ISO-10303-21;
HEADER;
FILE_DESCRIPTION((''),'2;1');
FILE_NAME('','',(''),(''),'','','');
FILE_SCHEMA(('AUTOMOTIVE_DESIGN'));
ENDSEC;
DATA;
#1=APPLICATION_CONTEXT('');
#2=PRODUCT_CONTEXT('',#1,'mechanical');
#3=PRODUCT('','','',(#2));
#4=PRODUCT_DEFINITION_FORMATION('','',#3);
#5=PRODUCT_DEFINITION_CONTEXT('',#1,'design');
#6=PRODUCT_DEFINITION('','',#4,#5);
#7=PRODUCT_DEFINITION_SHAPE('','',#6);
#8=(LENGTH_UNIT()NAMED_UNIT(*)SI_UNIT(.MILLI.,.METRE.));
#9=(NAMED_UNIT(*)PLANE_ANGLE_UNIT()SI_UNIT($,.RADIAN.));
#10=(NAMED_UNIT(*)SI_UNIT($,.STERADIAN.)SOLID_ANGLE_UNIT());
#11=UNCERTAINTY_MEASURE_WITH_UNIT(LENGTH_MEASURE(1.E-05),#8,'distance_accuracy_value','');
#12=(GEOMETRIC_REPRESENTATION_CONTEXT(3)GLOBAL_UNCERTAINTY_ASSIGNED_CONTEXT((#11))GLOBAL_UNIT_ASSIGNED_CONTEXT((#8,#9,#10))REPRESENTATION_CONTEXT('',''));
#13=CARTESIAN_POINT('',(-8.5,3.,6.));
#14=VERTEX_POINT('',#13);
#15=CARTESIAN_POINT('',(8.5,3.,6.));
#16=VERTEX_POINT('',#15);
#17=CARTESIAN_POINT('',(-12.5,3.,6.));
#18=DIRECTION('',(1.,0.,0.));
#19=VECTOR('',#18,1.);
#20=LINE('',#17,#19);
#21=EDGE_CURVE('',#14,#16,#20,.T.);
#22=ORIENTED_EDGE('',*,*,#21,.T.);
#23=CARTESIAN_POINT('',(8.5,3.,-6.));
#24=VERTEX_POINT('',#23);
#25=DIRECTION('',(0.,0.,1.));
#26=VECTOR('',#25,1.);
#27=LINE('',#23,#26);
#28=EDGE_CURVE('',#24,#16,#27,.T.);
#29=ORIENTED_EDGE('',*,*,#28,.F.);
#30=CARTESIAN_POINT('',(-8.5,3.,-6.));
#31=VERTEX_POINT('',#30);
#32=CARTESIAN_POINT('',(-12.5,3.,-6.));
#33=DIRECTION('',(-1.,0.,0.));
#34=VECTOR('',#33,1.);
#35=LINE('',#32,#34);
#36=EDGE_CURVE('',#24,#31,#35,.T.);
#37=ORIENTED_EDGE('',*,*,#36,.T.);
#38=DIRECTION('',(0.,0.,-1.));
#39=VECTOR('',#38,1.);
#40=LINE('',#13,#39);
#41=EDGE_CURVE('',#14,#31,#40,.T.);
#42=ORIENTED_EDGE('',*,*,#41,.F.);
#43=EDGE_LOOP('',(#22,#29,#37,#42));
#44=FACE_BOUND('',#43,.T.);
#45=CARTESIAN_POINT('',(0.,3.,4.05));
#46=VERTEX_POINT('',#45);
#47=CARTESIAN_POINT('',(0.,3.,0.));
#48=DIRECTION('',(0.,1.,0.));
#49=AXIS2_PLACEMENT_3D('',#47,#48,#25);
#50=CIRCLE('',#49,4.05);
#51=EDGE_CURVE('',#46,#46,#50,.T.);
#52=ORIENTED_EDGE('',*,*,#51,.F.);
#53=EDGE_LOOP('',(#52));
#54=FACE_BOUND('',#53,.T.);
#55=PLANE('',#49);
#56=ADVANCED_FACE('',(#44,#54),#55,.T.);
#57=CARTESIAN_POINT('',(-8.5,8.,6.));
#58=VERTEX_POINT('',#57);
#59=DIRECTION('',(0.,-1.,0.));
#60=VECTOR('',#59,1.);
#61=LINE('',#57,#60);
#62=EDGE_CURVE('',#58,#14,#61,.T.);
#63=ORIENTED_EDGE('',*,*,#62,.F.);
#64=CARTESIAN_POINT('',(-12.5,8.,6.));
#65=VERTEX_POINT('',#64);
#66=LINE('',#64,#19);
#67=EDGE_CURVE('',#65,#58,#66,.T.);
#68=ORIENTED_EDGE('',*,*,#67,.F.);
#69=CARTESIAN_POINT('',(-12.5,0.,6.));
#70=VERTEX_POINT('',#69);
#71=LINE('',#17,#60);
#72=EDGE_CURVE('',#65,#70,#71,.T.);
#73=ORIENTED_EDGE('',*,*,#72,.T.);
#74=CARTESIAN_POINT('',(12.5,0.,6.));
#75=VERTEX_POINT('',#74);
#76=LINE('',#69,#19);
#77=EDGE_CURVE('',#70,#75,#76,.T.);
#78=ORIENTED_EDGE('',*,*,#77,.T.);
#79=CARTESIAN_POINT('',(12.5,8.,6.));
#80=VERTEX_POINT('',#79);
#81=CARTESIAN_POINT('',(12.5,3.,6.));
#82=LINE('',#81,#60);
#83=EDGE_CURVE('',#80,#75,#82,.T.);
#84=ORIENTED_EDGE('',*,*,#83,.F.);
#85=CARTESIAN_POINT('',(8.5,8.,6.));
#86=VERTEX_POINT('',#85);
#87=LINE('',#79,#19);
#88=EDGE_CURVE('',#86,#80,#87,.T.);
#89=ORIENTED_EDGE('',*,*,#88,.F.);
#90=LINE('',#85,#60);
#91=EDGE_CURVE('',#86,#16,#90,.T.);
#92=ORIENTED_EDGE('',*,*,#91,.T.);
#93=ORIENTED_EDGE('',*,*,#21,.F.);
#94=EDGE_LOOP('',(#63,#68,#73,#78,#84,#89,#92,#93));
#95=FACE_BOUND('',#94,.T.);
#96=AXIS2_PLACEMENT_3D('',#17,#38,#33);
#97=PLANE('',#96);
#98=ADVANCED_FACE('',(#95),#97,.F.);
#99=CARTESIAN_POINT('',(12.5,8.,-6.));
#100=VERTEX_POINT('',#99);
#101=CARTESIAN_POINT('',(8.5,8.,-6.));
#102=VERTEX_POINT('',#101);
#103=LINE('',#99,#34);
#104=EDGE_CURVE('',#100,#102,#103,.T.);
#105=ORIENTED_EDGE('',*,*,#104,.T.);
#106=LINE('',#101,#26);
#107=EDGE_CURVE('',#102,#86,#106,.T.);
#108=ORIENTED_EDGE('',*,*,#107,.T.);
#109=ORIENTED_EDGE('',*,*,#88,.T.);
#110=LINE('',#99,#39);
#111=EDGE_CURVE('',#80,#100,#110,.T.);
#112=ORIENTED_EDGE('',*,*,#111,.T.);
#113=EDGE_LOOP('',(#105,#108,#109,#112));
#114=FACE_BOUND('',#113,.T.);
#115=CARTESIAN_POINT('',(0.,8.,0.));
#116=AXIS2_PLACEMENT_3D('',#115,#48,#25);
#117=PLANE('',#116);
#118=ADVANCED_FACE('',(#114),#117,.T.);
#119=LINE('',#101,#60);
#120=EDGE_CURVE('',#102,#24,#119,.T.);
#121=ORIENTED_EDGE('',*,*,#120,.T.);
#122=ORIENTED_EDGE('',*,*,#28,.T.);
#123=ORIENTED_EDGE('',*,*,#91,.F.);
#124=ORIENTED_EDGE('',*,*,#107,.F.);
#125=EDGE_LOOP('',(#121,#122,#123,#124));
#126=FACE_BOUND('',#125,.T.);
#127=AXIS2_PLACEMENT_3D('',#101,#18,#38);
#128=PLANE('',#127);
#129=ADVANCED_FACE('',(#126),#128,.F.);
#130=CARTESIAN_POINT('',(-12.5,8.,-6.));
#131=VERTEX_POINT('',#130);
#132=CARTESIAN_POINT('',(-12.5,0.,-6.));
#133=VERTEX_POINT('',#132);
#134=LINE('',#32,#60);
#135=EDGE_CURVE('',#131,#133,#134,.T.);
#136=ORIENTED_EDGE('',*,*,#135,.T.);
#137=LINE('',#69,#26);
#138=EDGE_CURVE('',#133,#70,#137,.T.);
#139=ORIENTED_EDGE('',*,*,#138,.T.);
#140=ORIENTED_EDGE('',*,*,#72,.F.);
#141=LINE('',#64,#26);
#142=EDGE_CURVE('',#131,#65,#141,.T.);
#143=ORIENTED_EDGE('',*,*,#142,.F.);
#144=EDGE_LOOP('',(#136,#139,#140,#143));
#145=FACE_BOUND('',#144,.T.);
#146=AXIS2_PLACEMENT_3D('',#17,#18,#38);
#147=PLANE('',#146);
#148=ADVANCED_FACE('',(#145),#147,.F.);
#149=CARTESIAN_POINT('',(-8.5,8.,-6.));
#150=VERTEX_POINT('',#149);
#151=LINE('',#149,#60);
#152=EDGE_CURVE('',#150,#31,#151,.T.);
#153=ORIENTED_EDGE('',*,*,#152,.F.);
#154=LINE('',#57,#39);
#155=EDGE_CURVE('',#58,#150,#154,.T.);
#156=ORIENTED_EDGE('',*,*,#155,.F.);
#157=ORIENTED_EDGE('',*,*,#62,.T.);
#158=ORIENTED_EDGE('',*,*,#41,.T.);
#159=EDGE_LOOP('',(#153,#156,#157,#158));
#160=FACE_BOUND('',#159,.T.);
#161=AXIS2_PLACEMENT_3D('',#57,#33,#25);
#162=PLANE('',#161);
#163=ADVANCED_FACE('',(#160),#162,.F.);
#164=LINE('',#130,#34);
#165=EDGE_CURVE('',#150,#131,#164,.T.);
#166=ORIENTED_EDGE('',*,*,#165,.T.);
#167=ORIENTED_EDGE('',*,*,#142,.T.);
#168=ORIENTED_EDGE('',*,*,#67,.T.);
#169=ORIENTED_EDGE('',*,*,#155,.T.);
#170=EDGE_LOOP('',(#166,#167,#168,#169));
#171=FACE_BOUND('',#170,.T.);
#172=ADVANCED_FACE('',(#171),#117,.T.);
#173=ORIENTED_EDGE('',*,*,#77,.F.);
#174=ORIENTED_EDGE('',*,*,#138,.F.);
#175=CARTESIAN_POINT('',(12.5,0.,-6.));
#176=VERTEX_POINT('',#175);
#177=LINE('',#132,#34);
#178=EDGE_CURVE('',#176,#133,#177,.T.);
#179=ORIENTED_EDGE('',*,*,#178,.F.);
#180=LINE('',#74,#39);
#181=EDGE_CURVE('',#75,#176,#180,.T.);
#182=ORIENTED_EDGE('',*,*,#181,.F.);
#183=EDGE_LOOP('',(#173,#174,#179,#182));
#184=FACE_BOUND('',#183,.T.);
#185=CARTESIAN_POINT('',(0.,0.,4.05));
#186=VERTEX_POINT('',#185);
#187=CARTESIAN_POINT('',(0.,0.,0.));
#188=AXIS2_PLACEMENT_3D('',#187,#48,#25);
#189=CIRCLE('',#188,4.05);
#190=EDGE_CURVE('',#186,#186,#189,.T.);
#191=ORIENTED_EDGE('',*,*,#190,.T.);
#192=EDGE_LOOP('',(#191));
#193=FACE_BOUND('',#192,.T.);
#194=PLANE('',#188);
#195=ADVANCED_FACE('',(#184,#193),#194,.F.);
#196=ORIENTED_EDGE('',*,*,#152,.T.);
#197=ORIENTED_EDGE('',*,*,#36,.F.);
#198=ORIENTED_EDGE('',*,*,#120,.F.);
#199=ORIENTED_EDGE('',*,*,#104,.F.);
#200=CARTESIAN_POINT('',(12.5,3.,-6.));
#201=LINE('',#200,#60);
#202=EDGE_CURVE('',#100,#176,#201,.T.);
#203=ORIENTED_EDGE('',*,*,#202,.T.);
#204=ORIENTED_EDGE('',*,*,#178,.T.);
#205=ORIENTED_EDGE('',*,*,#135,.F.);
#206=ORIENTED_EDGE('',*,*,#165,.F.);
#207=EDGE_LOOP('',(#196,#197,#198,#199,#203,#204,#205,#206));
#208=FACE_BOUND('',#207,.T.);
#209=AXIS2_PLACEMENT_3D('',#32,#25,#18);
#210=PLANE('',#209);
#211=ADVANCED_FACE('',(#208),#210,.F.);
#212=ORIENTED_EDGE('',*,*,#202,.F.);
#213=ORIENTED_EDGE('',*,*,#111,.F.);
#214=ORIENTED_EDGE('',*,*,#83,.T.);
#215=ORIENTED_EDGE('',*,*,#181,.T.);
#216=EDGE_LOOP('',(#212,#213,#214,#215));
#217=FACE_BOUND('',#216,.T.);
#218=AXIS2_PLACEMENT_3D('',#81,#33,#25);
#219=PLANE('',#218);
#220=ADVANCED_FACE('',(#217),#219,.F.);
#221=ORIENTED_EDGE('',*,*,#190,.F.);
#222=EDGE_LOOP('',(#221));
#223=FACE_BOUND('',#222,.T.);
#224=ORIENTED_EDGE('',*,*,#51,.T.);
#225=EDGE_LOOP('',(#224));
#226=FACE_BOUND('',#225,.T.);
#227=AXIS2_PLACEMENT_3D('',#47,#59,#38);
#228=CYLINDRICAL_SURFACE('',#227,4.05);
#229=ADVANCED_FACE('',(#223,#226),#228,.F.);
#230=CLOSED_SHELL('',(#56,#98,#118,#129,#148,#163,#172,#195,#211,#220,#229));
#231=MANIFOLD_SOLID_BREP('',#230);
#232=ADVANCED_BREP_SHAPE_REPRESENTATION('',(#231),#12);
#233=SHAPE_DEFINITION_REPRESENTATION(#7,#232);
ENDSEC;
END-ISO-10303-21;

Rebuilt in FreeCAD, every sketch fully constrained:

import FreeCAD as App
import Part
import Sketcher

doc = App.newDocument("Part")
body = doc.addObject("PartDesign::Body", "Body")

sketch1 = doc.addObject("Sketcher::SketchObject", "Sketch")
body.addObject(sketch1)
sketch1.AttachmentSupport = (doc.XZ_Plane, [""])
sketch1.MapMode = "FlatFace"
sketch1.addGeometry(Part.LineSegment(App.Vector(-12.5, -6, 0), App.Vector(-12.5, 6, 0)), False)
sketch1.addGeometry(Part.LineSegment(App.Vector(-12.5, 6, 0), App.Vector(12.5, 6, 0)), False)
sketch1.addGeometry(Part.LineSegment(App.Vector(12.5, 6, 0), App.Vector(12.5, -6, 0)), False)
sketch1.addGeometry(Part.LineSegment(App.Vector(12.5, -6, 0), App.Vector(-12.5, -6, 0)), False)
sketch1.addGeometry(Part.Circle(App.Vector(0, 0, 0), App.Vector(0, 0, 1), 4.05), False)
sketch1.addConstraint(Sketcher.Constraint("Coincident", 0, 2, 1, 1))
sketch1.addConstraint(Sketcher.Constraint("Coincident", 1, 2, 2, 1))
sketch1.addConstraint(Sketcher.Constraint("Coincident", 2, 2, 3, 1))
sketch1.addConstraint(Sketcher.Constraint("Coincident", 3, 2, 0, 1))
sketch1.addConstraint(Sketcher.Constraint("Vertical", 0))
sketch1.addConstraint(Sketcher.Constraint("Horizontal", 1))
sketch1.addConstraint(Sketcher.Constraint("Vertical", 2))
sketch1.addConstraint(Sketcher.Constraint("Horizontal", 3))
sketch1.addConstraint(Sketcher.Constraint("Coincident", 4, 3, -1, 1))
sketch1.addConstraint(Sketcher.Constraint("Symmetric", 0, 2, 2, 2, -1, 1))
sketch1.addConstraint(Sketcher.Constraint("Diameter", 4, 8.1))
sketch1.addConstraint(Sketcher.Constraint("DistanceX", 1, 1, 1, 2, 25.0))
sketch1.addConstraint(Sketcher.Constraint("DistanceY", 0, 1, 0, 2, 12.0))
pad1 = doc.addObject("PartDesign::Pad", "Pad")
body.addObject(pad1)
pad1.Profile = sketch1
pad1.Length = 3
pad1.Reversed = True

sketch2 = doc.addObject("Sketcher::SketchObject", "Sketch001")
body.addObject(sketch2)
sketch2.AttachmentSupport = (doc.XZ_Plane, [""])
sketch2.MapMode = "FlatFace"
sketch2.AttachmentOffset = App.Placement(App.Vector(0, 0, -3), App.Rotation())
sketch2.addGeometry(Part.LineSegment(App.Vector(-12.5, -6, 0), App.Vector(-12.5, 6, 0)), False)
sketch2.addGeometry(Part.LineSegment(App.Vector(-12.5, 6, 0), App.Vector(-8.5, 6, 0)), False)
sketch2.addGeometry(Part.LineSegment(App.Vector(-8.5, 6, 0), App.Vector(-8.5, -6, 0)), False)
sketch2.addGeometry(Part.LineSegment(App.Vector(-8.5, -6, 0), App.Vector(-12.5, -6, 0)), False)
sketch2.addGeometry(Part.LineSegment(App.Vector(8.5, -6, 0), App.Vector(8.5, 6, 0)), False)
sketch2.addGeometry(Part.LineSegment(App.Vector(8.5, 6, 0), App.Vector(12.5, 6, 0)), False)
sketch2.addGeometry(Part.LineSegment(App.Vector(12.5, 6, 0), App.Vector(12.5, -6, 0)), False)
sketch2.addGeometry(Part.LineSegment(App.Vector(12.5, -6, 0), App.Vector(8.5, -6, 0)), False)
sketch2.addConstraint(Sketcher.Constraint("Coincident", 0, 2, 1, 1))
sketch2.addConstraint(Sketcher.Constraint("Coincident", 1, 2, 2, 1))
sketch2.addConstraint(Sketcher.Constraint("Coincident", 2, 2, 3, 1))
sketch2.addConstraint(Sketcher.Constraint("Coincident", 3, 2, 0, 1))
sketch2.addConstraint(Sketcher.Constraint("Coincident", 4, 2, 5, 1))
sketch2.addConstraint(Sketcher.Constraint("Coincident", 5, 2, 6, 1))
sketch2.addConstraint(Sketcher.Constraint("Coincident", 6, 2, 7, 1))
sketch2.addConstraint(Sketcher.Constraint("Coincident", 7, 2, 4, 1))
sketch2.addConstraint(Sketcher.Constraint("Vertical", 0))
sketch2.addConstraint(Sketcher.Constraint("Horizontal", 1))
sketch2.addConstraint(Sketcher.Constraint("Vertical", 2))
sketch2.addConstraint(Sketcher.Constraint("Horizontal", 3))
sketch2.addConstraint(Sketcher.Constraint("Vertical", 4))
sketch2.addConstraint(Sketcher.Constraint("Horizontal", 5))
sketch2.addConstraint(Sketcher.Constraint("Vertical", 6))
sketch2.addConstraint(Sketcher.Constraint("Horizontal", 7))
sketch2.addConstraint(Sketcher.Constraint("Symmetric", 2, 2, 4, 2, -1, 1))
sketch2.addConstraint(Sketcher.Constraint("Symmetric", 0, 2, 6, 2, -1, 1))
sketch2.addConstraint(Sketcher.Constraint("Horizontal", 1, 2, 4, 2))
sketch2.addConstraint(Sketcher.Constraint("DistanceX", 1, 1, 1, 2, 4.0))
sketch2.addConstraint(Sketcher.Constraint("DistanceY", 0, 1, 0, 2, 12.0))
sketch2.addConstraint(Sketcher.Constraint("DistanceX", 1, 2, 4, 2, 17.0))
pad2 = doc.addObject("PartDesign::Pad", "Pad001")
body.addObject(pad2)
pad2.Profile = sketch2
pad2.Length = 5
pad2.Reversed = True

doc.recompute()
